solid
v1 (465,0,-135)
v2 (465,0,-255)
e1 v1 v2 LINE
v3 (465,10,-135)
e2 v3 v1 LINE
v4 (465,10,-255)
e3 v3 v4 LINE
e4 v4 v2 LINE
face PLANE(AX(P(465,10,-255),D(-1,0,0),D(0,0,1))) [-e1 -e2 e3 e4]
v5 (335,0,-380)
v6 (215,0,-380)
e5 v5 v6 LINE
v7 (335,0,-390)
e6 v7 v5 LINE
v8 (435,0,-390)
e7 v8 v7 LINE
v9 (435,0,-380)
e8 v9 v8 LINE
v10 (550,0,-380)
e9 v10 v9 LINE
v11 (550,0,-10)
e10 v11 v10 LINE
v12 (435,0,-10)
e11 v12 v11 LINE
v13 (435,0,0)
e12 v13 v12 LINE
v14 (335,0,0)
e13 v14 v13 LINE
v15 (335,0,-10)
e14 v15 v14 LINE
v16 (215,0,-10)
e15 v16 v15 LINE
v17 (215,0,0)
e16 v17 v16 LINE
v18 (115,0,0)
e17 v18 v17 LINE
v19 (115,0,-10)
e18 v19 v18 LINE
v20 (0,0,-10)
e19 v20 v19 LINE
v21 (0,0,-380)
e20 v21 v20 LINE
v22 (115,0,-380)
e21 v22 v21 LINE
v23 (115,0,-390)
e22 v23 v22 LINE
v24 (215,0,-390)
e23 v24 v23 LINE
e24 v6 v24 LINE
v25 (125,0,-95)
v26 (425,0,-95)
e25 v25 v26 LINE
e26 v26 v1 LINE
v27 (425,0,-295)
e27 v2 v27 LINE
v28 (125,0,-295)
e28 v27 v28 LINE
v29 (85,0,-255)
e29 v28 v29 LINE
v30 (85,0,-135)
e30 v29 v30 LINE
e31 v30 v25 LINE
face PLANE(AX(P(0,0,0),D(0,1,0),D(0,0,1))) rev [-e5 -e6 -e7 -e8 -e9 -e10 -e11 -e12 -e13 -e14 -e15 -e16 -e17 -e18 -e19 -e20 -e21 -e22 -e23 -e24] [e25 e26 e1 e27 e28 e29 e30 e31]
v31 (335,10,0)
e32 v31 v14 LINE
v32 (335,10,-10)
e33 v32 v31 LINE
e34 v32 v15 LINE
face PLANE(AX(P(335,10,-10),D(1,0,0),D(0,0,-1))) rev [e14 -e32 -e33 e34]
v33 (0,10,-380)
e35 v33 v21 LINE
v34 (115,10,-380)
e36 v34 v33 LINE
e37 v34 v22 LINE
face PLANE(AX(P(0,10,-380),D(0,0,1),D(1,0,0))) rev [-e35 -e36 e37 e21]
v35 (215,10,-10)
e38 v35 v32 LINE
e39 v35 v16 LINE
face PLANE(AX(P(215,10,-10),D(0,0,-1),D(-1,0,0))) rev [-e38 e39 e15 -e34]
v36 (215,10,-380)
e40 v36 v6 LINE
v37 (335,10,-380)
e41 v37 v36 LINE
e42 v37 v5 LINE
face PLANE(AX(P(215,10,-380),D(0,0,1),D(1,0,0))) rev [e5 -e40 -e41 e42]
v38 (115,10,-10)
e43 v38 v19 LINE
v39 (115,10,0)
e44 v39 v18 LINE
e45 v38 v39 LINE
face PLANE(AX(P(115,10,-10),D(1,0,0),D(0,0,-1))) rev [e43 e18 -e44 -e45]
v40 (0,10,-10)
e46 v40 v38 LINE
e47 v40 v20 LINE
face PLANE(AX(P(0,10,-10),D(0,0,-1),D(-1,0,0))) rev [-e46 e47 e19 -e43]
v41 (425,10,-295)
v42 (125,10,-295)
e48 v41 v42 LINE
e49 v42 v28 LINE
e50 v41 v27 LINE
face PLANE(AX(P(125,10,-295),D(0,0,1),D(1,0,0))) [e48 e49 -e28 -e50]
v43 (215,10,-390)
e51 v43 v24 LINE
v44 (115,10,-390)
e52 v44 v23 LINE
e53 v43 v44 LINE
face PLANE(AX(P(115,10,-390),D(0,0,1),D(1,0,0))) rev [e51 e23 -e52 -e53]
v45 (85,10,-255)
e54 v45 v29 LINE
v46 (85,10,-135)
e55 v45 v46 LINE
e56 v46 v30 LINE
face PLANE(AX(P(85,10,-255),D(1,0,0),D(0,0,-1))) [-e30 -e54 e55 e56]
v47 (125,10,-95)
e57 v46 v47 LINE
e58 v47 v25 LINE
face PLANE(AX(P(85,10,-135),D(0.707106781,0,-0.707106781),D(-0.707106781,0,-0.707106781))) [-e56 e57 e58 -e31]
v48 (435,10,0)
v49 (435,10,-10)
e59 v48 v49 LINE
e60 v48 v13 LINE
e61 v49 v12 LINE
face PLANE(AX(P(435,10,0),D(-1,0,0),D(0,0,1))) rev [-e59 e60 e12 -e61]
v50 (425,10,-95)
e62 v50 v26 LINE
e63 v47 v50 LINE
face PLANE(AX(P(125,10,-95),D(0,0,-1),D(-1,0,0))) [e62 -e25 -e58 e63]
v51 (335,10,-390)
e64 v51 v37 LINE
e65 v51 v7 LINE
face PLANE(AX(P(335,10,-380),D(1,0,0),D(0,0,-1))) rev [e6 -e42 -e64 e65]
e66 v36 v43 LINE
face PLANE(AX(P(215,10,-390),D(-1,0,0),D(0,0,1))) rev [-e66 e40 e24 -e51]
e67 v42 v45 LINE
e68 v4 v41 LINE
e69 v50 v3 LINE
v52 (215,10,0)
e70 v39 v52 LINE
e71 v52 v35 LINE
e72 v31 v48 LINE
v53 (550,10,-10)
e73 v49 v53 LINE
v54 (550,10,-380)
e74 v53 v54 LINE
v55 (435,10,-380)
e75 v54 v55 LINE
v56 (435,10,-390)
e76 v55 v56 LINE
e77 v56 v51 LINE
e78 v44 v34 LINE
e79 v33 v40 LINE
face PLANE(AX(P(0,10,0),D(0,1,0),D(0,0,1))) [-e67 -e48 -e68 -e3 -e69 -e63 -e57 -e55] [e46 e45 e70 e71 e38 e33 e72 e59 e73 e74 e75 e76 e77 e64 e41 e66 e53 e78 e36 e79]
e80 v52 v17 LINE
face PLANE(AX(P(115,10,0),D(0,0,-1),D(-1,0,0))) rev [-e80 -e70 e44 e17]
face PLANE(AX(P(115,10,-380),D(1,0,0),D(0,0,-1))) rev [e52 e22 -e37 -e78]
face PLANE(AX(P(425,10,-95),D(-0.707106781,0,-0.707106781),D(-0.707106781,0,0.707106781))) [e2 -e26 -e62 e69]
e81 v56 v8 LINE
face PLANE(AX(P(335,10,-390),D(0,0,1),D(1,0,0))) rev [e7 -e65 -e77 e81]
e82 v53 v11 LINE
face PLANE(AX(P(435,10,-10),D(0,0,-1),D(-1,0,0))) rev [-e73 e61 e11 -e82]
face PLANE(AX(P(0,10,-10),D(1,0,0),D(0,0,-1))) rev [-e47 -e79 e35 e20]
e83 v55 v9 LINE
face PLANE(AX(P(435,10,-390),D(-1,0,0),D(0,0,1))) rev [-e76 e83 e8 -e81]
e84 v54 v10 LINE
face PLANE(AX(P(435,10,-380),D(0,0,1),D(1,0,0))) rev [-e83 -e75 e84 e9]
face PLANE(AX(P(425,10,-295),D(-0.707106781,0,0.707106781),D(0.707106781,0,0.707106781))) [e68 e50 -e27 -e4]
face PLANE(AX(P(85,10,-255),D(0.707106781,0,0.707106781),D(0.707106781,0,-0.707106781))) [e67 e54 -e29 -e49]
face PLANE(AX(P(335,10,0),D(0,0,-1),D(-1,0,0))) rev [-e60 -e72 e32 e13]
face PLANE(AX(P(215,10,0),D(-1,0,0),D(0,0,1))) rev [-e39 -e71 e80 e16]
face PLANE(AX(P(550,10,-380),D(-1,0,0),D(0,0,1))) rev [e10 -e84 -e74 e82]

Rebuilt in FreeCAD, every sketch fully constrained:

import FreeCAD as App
import Part
import Sketcher
from FreeCAD import Vector
Q = App.Units.Quantity

doc = App.newDocument("Part")
body = doc.addObject("PartDesign::Body", "Body")

sketch1 = body.newObject("Sketcher::SketchObject", "Sketch")
sketch1.AttachmentSupport = (doc.getObject("XZ_Plane"), [""])
sketch1.MapMode = "FlatFace"
sketch1.addGeometry(Part.LineSegment(Vector(0, -10, 0), Vector(115, -10, 0)), False)
sketch1.addGeometry(Part.LineSegment(Vector(115, -10, 0), Vector(115, 0, 0)), False)
sketch1.addGeometry(Part.LineSegment(Vector(115, 0, 0), Vector(215, 0, 0)), False)
sketch1.addGeometry(Part.LineSegment(Vector(215, 0, 0), Vector(215, -10, 0)), False)
sketch1.addGeometry(Part.LineSegment(Vector(215, -10, 0), Vector(335, -10, 0)), False)
sketch1.addGeometry(Part.LineSegment(Vector(335, -10, 0), Vector(335, 0, 0)), False)
sketch1.addGeometry(Part.LineSegment(Vector(335, 0, 0), Vector(435, 0, 0)), False)
sketch1.addGeometry(Part.LineSegment(Vector(435, 0, 0), Vector(435, -10, 0)), False)
sketch1.addGeometry(Part.LineSegment(Vector(435, -10, 0), Vector(550, -10, 0)), False)
sketch1.addGeometry(Part.LineSegment(Vector(550, -10, 0), Vector(550, -380, 0)), False)
sketch1.addGeometry(Part.LineSegment(Vector(550, -380, 0), Vector(435, -380, 0)), False)
sketch1.addGeometry(Part.LineSegment(Vector(435, -380, 0), Vector(435, -390, 0)), False)
sketch1.addGeometry(Part.LineSegment(Vector(435, -390, 0), Vector(335, -390, 0)), False)
sketch1.addGeometry(Part.LineSegment(Vector(335, -390, 0), Vector(335, -380, 0)), False)
sketch1.addGeometry(Part.LineSegment(Vector(335, -380, 0), Vector(215, -380, 0)), False)
sketch1.addGeometry(Part.LineSegment(Vector(215, -380, 0), Vector(215, -390, 0)), False)
sketch1.addGeometry(Part.LineSegment(Vector(215, -390, 0), Vector(115, -390, 0)), False)
sketch1.addGeometry(Part.LineSegment(Vector(115, -390, 0), Vector(115, -380, 0)), False)
sketch1.addGeometry(Part.LineSegment(Vector(115, -380, 0), Vector(0, -380, 0)), False)
sketch1.addGeometry(Part.LineSegment(Vector(0, -380, 0), Vector(0, -10, 0)), False)
sketch1.addGeometry(Part.LineSegment(Vector(125, -95, 0), Vector(85, -135, 0)), False)
sketch1.addGeometry(Part.LineSegment(Vector(85, -135, 0), Vector(85, -255, 0)), False)
sketch1.addGeometry(Part.LineSegment(Vector(85, -255, 0), Vector(125, -295, 0)), False)
sketch1.addGeometry(Part.LineSegment(Vector(125, -295, 0), Vector(425, -295, 0)), False)
sketch1.addGeometry(Part.LineSegment(Vector(425, -295, 0), Vector(465, -255, 0)), False)
sketch1.addGeometry(Part.LineSegment(Vector(465, -255, 0), Vector(465, -135, 0)), False)
sketch1.addGeometry(Part.LineSegment(Vector(465, -135, 0), Vector(425, -95, 0)), False)
sketch1.addGeometry(Part.LineSegment(Vector(425, -95, 0), Vector(125, -95, 0)), False)
sketch1.addConstraint(Sketcher.Constraint("Coincident", 0, 2, 1, 1))
sketch1.addConstraint(Sketcher.Constraint("Coincident", 1, 2, 2, 1))
sketch1.addConstraint(Sketcher.Constraint("Coincident", 2, 2, 3, 1))
sketch1.addConstraint(Sketcher.Constraint("Coincident", 3, 2, 4, 1))
sketch1.addConstraint(Sketcher.Constraint("Coincident", 4, 2, 5, 1))
sketch1.addConstraint(Sketcher.Constraint("Coincident", 5, 2, 6, 1))
sketch1.addConstraint(Sketcher.Constraint("Coincident", 6, 2, 7, 1))
sketch1.addConstraint(Sketcher.Constraint("Coincident", 7, 2, 8, 1))
sketch1.addConstraint(Sketcher.Constraint("Coincident", 8, 2, 9, 1))
sketch1.addConstraint(Sketcher.Constraint("Coincident", 9, 2, 10, 1))
sketch1.addConstraint(Sketcher.Constraint("Coincident", 10, 2, 11, 1))
sketch1.addConstraint(Sketcher.Constraint("Coincident", 11, 2, 12, 1))
sketch1.addConstraint(Sketcher.Constraint("Coincident", 12, 2, 13, 1))
sketch1.addConstraint(Sketcher.Constraint("Coincident", 13, 2, 14, 1))
sketch1.addConstraint(Sketcher.Constraint("Coincident", 14, 2, 15, 1))
sketch1.addConstraint(Sketcher.Constraint("Coincident", 15, 2, 16, 1))
sketch1.addConstraint(Sketcher.Constraint("Coincident", 16, 2, 17, 1))
sketch1.addConstraint(Sketcher.Constraint("Coincident", 17, 2, 18, 1))
sketch1.addConstraint(Sketcher.Constraint("Coincident", 18, 2, 19, 1))
sketch1.addConstraint(Sketcher.Constraint("Coincident", 19, 2, 0, 1))
sketch1.addConstraint(Sketcher.Constraint("Coincident", 20, 2, 21, 1))
sketch1.addConstraint(Sketcher.Constraint("Coincident", 21, 2, 22, 1))
sketch1.addConstraint(Sketcher.Constraint("Coincident", 22, 2, 23, 1))
sketch1.addConstraint(Sketcher.Constraint("Coincident", 23, 2, 24, 1))
sketch1.addConstraint(Sketcher.Constraint("Coincident", 24, 2, 25, 1))
sketch1.addConstraint(Sketcher.Constraint("Coincident", 25, 2, 26, 1))
sketch1.addConstraint(Sketcher.Constraint("Coincident", 26, 2, 27, 1))
sketch1.addConstraint(Sketcher.Constraint("Coincident", 27, 2, 20, 1))
sketch1.addConstraint(Sketcher.Constraint("Horizontal", 0))
sketch1.addConstraint(Sketcher.Constraint("Vertical", 1))
sketch1.addConstraint(Sketcher.Constraint("Horizontal", 2))
sketch1.addConstraint(Sketcher.Constraint("Vertical", 3))
sketch1.addConstraint(Sketcher.Constraint("Horizontal", 4))
sketch1.addConstraint(Sketcher.Constraint("Vertical", 5))
sketch1.addConstraint(Sketcher.Constraint("Horizontal", 6))
sketch1.addConstraint(Sketcher.Constraint("Vertical", 7))
sketch1.addConstraint(Sketcher.Constraint("Horizontal", 8))
sketch1.addConstraint(Sketcher.Constraint("Vertical", 9))
sketch1.addConstraint(Sketcher.Constraint("Horizontal", 10))
sketch1.addConstraint(Sketcher.Constraint("Vertical", 11))
sketch1.addConstraint(Sketcher.Constraint("Horizontal", 12))
sketch1.addConstraint(Sketcher.Constraint("Vertical", 13))
sketch1.addConstraint(Sketcher.Constraint("Horizontal", 14))
sketch1.addConstraint(Sketcher.Constraint("Vertical", 15))
sketch1.addConstraint(Sketcher.Constraint("Horizontal", 16))
sketch1.addConstraint(Sketcher.Constraint("Vertical", 17))
sketch1.addConstraint(Sketcher.Constraint("Horizontal", 18))
sketch1.addConstraint(Sketcher.Constraint("Vertical", 19))
sketch1.addConstraint(Sketcher.Constraint("Vertical", 21))
sketch1.addConstraint(Sketcher.Constraint("Horizontal", 23))
sketch1.addConstraint(Sketcher.Constraint("Vertical", 25))
sketch1.addConstraint(Sketcher.Constraint("Horizontal", 27))
sketch1.addConstraint(Sketcher.Constraint("PointOnObject", 1, 2, -1))
sketch1.addConstraint(Sketcher.Constraint("PointOnObject", 5, 2, -1))
sketch1.addConstraint(Sketcher.Constraint("PointOnObject", 18, 2, -2))
sketch1.addConstraint(Sketcher.Constraint("Perpendicular", 20, 22))
sketch1.addConstraint(Sketcher.Constraint("Perpendicular", 22, 24))
sketch1.addConstraint(Sketcher.Constraint("Perpendicular", 24, 26))
sketch1.addConstraint(Sketcher.Constraint("Horizontal", 0, 2, 3, 2))
sketch1.addConstraint(Sketcher.Constraint("Horizontal", 4, 2, 7, 2))
sketch1.addConstraint(Sketcher.Constraint("Horizontal", 10, 2, 13, 2))
sketch1.addConstraint(Sketcher.Constraint("Horizontal", 12, 2, 15, 2))
sketch1.addConstraint(Sketcher.Constraint("Horizontal", 14, 2, 17, 2))
sketch1.addConstraint(Sketcher.Constraint("Horizontal", 21, 2, 24, 2))
sketch1.addConstraint(Sketcher.Constraint("Horizontal", 20, 2, 25, 2))
sketch1.addConstraint(Sketcher.Constraint("Vertical", 7, 2, 10, 2))
sketch1.addConstraint(Sketcher.Constraint("Vertical", 5, 2, 12, 2))
sketch1.addConstraint(Sketcher.Constraint("Vertical", 3, 2, 14, 2))
sketch1.addConstraint(Sketcher.Constraint("Vertical", 1, 2, 16, 2))
sketch1.addConstraint(Sketcher.Constraint("Vertical", 23, 2, 26, 2))
sketch1.addConstraint(Sketcher.Constraint("Vertical", 22, 2, 27, 2))
sketch1.addConstraint(Sketcher.Constraint("Equal", 2, 6))
sketch1.addConstraint(Sketcher.Constraint("Equal", 0, 8))
sketch1.addConstraint(Sketcher.Constraint("Equal", 7, 11))
sketch1.addConstraint(Sketcher.Constraint("Equal", 14, 21))
sketch1.addConstraint(Sketcher.Constraint("DistanceX", 0, 1, 0, 2, Q("115 mm")))
sketch1.addConstraint(Sketcher.Constraint("DistanceX", 2, 1, 2, 2, Q("100 mm")))
sketch1.addConstraint(Sketcher.Constraint("DistanceX", 4, 1, 4, 2, Q("120 mm")))
sketch1.addConstraint(Sketcher.Constraint("DistanceX", 23, 1, 23, 2, Q("300 mm")))
sketch1.addConstraint(Sketcher.Constraint("DistanceY", 1, 1, 1, 2, Q("10 mm")))
sketch1.addConstraint(Sketcher.Constraint("DistanceY", 9, 2, 9, 1, Q("370 mm")))
sketch1.addConstraint(Sketcher.Constraint("DistanceX", -1, 1, 20, 2, Q("85 mm")))
sketch1.addConstraint(Sketcher.Constraint("DistanceY", 20, 2, -1, 1, Q("135 mm")))
sketch1.addConstraint(Sketcher.Constraint("DistanceX", -1, 1, 22, 2, Q("125 mm")))
pad1 = body.newObject("PartDesign::Pad", "Pad")
pad1.Profile = sketch1
pad1.Length = 10
pad1.Reversed = True

doc.recompute()
